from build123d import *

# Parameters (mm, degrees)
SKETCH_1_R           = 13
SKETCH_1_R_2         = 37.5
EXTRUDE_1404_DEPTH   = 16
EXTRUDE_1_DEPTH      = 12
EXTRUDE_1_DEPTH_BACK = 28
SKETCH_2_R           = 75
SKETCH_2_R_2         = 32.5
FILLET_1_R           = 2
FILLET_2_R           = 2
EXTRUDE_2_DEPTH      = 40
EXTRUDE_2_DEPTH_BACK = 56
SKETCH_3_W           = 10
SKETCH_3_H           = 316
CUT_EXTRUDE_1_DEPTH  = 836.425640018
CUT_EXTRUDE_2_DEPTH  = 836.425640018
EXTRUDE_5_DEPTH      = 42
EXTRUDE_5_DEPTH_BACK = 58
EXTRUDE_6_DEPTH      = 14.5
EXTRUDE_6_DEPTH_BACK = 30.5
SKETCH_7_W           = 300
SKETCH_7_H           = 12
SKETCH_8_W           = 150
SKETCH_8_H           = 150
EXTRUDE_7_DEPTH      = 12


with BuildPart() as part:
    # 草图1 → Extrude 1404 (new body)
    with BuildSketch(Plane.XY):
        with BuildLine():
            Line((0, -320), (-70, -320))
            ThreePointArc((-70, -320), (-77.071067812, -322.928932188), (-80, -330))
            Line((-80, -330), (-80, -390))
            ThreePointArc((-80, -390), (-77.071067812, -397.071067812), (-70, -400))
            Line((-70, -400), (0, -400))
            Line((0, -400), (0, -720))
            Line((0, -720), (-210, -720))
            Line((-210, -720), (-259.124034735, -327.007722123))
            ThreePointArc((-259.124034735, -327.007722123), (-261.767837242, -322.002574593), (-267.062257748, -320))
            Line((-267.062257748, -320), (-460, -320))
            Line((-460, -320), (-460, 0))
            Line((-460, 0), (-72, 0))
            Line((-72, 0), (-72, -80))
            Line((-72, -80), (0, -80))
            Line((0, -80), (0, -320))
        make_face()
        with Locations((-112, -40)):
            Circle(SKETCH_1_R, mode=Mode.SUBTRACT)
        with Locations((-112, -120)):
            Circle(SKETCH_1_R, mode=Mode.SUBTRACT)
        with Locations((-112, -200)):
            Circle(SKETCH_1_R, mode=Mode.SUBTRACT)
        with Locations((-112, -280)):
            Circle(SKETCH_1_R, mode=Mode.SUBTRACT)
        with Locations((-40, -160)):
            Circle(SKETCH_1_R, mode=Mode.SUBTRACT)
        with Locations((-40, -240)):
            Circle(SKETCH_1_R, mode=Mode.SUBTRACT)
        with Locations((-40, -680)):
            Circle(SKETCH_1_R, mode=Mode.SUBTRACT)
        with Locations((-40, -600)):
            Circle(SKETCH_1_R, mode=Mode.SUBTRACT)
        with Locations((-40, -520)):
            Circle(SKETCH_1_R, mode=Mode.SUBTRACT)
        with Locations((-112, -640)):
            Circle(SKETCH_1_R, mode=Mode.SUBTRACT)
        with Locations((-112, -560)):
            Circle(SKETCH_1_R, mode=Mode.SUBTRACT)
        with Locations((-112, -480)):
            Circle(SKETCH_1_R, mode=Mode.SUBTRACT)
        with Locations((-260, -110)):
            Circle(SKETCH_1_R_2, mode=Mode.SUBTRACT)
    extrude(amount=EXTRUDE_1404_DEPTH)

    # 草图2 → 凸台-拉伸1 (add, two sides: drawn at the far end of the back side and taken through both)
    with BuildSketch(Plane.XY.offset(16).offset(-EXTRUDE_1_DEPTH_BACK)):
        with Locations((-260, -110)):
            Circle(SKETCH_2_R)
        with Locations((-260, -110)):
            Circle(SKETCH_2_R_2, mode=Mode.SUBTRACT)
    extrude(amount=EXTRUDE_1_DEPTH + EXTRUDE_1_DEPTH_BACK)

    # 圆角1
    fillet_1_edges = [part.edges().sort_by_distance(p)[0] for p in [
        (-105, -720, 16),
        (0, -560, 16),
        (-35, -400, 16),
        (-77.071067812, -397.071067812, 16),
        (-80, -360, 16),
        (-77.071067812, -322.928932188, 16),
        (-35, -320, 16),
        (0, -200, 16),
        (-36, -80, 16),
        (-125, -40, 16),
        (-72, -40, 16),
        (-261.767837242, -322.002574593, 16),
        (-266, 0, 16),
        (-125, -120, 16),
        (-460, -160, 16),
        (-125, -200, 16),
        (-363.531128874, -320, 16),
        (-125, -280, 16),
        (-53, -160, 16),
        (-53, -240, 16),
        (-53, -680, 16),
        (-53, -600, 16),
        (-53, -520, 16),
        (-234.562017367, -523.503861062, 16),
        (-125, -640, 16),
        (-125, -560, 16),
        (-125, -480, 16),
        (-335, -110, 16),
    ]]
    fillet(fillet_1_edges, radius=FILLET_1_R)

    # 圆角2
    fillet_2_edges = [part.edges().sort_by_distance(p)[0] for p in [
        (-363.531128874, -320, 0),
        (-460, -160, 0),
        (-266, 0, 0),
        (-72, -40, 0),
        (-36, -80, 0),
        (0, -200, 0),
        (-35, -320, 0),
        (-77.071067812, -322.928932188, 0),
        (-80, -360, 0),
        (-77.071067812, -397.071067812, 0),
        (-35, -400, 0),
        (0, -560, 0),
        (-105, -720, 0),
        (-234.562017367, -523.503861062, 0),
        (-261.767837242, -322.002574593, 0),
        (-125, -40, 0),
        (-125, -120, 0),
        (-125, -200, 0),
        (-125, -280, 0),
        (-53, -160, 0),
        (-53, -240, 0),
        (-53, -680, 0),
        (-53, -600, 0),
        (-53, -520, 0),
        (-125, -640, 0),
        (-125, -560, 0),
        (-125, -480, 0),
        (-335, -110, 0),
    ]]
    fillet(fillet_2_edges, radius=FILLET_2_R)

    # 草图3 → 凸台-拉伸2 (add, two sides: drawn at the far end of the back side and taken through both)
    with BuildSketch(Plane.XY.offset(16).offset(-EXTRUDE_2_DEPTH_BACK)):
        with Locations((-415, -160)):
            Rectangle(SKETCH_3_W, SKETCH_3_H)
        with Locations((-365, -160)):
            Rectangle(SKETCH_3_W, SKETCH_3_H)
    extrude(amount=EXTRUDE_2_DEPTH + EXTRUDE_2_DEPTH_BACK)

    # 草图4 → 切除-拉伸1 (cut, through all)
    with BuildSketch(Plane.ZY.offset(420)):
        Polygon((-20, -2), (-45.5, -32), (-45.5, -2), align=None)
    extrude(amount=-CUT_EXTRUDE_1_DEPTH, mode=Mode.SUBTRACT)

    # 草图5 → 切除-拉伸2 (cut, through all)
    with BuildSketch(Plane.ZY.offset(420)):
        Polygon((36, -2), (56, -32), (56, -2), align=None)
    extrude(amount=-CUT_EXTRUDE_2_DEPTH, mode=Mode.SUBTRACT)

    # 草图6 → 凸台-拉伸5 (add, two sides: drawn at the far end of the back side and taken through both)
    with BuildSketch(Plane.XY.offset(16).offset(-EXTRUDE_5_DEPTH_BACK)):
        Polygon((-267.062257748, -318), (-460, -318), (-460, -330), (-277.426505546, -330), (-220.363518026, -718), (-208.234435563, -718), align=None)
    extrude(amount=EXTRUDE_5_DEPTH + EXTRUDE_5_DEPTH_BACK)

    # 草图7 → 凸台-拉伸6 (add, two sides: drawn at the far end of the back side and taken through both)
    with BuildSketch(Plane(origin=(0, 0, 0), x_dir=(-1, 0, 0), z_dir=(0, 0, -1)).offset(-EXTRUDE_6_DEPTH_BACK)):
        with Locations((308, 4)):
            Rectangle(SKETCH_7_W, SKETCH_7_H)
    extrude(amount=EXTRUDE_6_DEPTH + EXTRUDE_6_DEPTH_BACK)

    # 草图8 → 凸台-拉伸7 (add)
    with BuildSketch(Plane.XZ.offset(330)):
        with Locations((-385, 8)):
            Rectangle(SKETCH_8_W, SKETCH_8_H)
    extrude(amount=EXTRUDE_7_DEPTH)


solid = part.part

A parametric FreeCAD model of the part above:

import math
import FreeCAD as App
import Part
import Sketcher

V = App.Vector
Q = App.Units.Quantity


def edges_at(feature, points):
    """Names of the edges that pass closest to the given points."""
    edges = feature.Shape.Edges
    near = lambda p: min(range(len(edges)), key=lambda i: edges[i].distToShape(Part.Vertex(*p))[0])
    return sorted({f"Edge{near(p) + 1}" for p in points})

doc = App.newDocument("Part")
params = doc.addObject("Spreadsheet::Sheet", "Params")
for row, (alias, value) in enumerate([
    ("sketch1_diameter", "26 mm"),
    ("sketch1_diameter2", "75 mm"),
    ("sketch1_radius", "8 mm"),
    ("sketch1_radius2", "10 mm"),
    ("sketch1_width", "70 mm"),
    ("pad1_length", "16 mm"),
    ("sketch2_diameter", "150 mm"),
    ("sketch2_diameter2", "65 mm"),
    ("pad2_length", "12 mm"),
    ("pad2_length2", "28 mm"),
    ("fillet_radius", "2 mm"),
    ("fillet2_radius", "2 mm"),
    ("sketch3_width", "10 mm"),
    ("sketch3_height", "316 mm"),
    ("pad3_length", "40 mm"),
    ("pad3_length2", "56 mm"),
    ("sketch4_width", "30 mm"),
    ("sketch4_height", "25.5 mm"),
    ("sketch5_width", "30 mm"),
    ("sketch5_height", "20 mm"),
    ("sketch6_height", "12 mm"),
    ("pad4_length", "42 mm"),
    ("pad4_length2", "58 mm"),
    ("sketch7_width", "300 mm"),
    ("sketch7_height", "12 mm"),
    ("pad5_length", "14.5 mm"),
    ("pad5_length2", "30.5 mm"),
    ("sketch8_width", "150 mm"),
    ("pad6_length", "12 mm"),
], start=1):
    params.set(f"A{row}", alias)
    params.set(f"B{row}", "=" + value)
    params.setAlias(f"B{row}", alias)

body = doc.addObject("PartDesign::Body", "Body")

sketch1 = body.newObject("Sketcher::SketchObject", "Sketch")
sketch1.AttachmentSupport = (doc.getObject("XY_Plane"), [""])
sketch1.MapMode = "FlatFace"
sketch1.addGeometry(Part.LineSegment(V(-70, -320, 0), V(0, -320, 0)), False)
sketch1.addGeometry(Part.LineSegment(V(0, -320, 0), V(0, -80, 0)), False)
sketch1.addGeometry(Part.LineSegment(V(0, -80, 0), V(-72, -80, 0)), False)
sketch1.addGeometry(Part.LineSegment(V(-72, -80, 0), V(-72, 0, 0)), False)
sketch1.addGeometry(Part.LineSegment(V(-72, 0, 0), V(-460, 0, 0)), False)
sketch1.addGeometry(Part.LineSegment(V(-460, 0, 0), V(-460, -320, 0)), False)
sketch1.addGeometry(Part.LineSegment(V(-460, -320, 0), V(-267, -320, 0)), False)
sketch1.addGeometry(Part.ArcOfCircle(Part.Circle(V(-267, -328, 0), V(0, 0, 1), 8), math.radians(7), math.radians(90)), False)
sketch1.addGeometry(Part.LineSegment(V(-259, -327, 0), V(-210, -720, 0)), False)
sketch1.addGeometry(Part.LineSegment(V(-210, -720, 0), V(0, -720, 0)), False)
sketch1.addGeometry(Part.LineSegment(V(0, -720, 0), V(0, -400, 0)), False)
sketch1.addGeometry(Part.LineSegment(V(0, -400, 0), V(-70, -400, 0)), False)
sketch1.addGeometry(Part.ArcOfCircle(Part.Circle(V(-70, -390, 0), V(0, 0, 1), 10), math.radians(180), math.radians(270)), False)
sketch1.addGeometry(Part.LineSegment(V(-80, -390, 0), V(-80, -330, 0)), False)
sketch1.addGeometry(Part.ArcOfCircle(Part.Circle(V(-70, -330, 0), V(0, 0, 1), 10), math.radians(90), math.radians(180)), False)
sketch1.addGeometry(Part.Circle(V(-40, -680, 0), V(0, 0, 1), 13), False)
sketch1.addGeometry(Part.Circle(V(-40, -600, 0), V(0, 0, 1), 13), False)
sketch1.addGeometry(Part.Circle(V(-112, -640, 0), V(0, 0, 1), 13), False)
sketch1.addGeometry(Part.Circle(V(-112, -560, 0), V(0, 0, 1), 13), False)
sketch1.addGeometry(Part.Circle(V(-40, -520, 0), V(0, 0, 1), 13), False)
sketch1.addGeometry(Part.Circle(V(-112, -480, 0), V(0, 0, 1), 13), False)
sketch1.addGeometry(Part.Circle(V(-40, -240, 0), V(0, 0, 1), 13), False)
sketch1.addGeometry(Part.Circle(V(-112, -280, 0), V(0, 0, 1), 13), False)
sketch1.addGeometry(Part.Circle(V(-112, -200, 0), V(0, 0, 1), 13), False)
sketch1.addGeometry(Part.Circle(V(-40, -160, 0), V(0, 0, 1), 13), False)
sketch1.addGeometry(Part.Circle(V(-112, -120, 0), V(0, 0, 1), 13), False)
sketch1.addGeometry(Part.Circle(V(-112, -40, 0), V(0, 0, 1), 13), False)
sketch1.addGeometry(Part.Circle(V(-260, -110, 0), V(0, 0, 1), 38), False)
sketch1.addConstraint(Sketcher.Constraint("Coincident", 0, 2, 1, 1))
sketch1.addConstraint(Sketcher.Constraint("Coincident", 1, 2, 2, 1))
sketch1.addConstraint(Sketcher.Constraint("Coincident", 2, 2, 3, 1))
sketch1.addConstraint(Sketcher.Constraint("Coincident", 3, 2, 4, 1))
sketch1.addConstraint(Sketcher.Constraint("Coincident", 4, 2, 5, 1))
sketch1.addConstraint(Sketcher.Constraint("Coincident", 5, 2, 6, 1))
sketch1.addConstraint(Sketcher.Constraint("Tangent", 6, 2, 7, 2))
sketch1.addConstraint(Sketcher.Constraint("Tangent", 7, 1, 8, 1))
sketch1.addConstraint(Sketcher.Constraint("Coincident", 8, 2, 9, 1))
sketch1.addConstraint(Sketcher.Constraint("Coincident", 9, 2, 10, 1))
sketch1.addConstraint(Sketcher.Constraint("Coincident", 10, 2, 11, 1))
sketch1.addConstraint(Sketcher.Constraint("Tangent", 11, 2, 12, 2))
sketch1.addConstraint(Sketcher.Constraint("Tangent", 12, 1, 13, 1))
sketch1.addConstraint(Sketcher.Constraint("Tangent", 13, 2, 14, 2))
sketch1.addConstraint(Sketcher.Constraint("Tangent", 14, 1, 0, 1))
sketch1.addConstraint(Sketcher.Constraint("Horizontal", 0))
sketch1.addConstraint(Sketcher.Constraint("Vertical", 1))
sketch1.addConstraint(Sketcher.Constraint("Horizontal", 2))
sketch1.addConstraint(Sketcher.Constraint("Vertical", 3))
sketch1.addConstraint(Sketcher.Constraint("Horizontal", 4))
sketch1.addConstraint(Sketcher.Constraint("Vertical", 5))
sketch1.addConstraint(Sketcher.Constraint("Horizontal", 6))
sketch1.addConstraint(Sketcher.Constraint("Horizontal", 9))
sketch1.addConstraint(Sketcher.Constraint("Vertical", 10))
sketch1.addConstraint(Sketcher.Constraint("Horizontal", 11))
sketch1.addConstraint(Sketcher.Constraint("Vertical", 13))
sketch1.addConstraint(Sketcher.Constraint("Equal", 12, 14))
sketch1.addConstraint(Sketcher.Constraint("Equal", 15, 16))
sketch1.addConstraint(Sketcher.Constraint("Equal", 16, 17))
sketch1.addConstraint(Sketcher.Constraint("Equal", 17, 18))
sketch1.addConstraint(Sketcher.Constraint("Equal", 18, 19))
sketch1.addConstraint(Sketcher.Constraint("Equal", 19, 20))
sketch1.addConstraint(Sketcher.Constraint("Equal", 20, 21))
sketch1.addConstraint(Sketcher.Constraint("Equal", 21, 22))
sketch1.addConstraint(Sketcher.Constraint("Equal", 22, 23))
sketch1.addConstraint(Sketcher.Constraint("Equal", 23, 24))
sketch1.addConstraint(Sketcher.Constraint("Equal", 24, 25))
sketch1.addConstraint(Sketcher.Constraint("Equal", 25, 26))
sketch1.addConstraint(Sketcher.Constraint("PointOnObject", 0, 2, -2))
sketch1.addConstraint(Sketcher.Constraint("PointOnObject", 3, 2, -1))
sketch1.addConstraint(Sketcher.Constraint("PointOnObject", 9, 2, -2))
sketch1.addConstraint(Sketcher.Constraint("Horizontal", 0, 2, 5, 2))
sketch1.addConstraint(Sketcher.Constraint("Vertical", 15, 3, 16, 3))
sketch1.addConstraint(Sketcher.Constraint("Vertical", 17, 3, 18, 3))
sketch1.addConstraint(Sketcher.Constraint("Vertical", 16, 3, 19, 3))
sketch1.addConstraint(Sketcher.Constraint("Vertical", 18, 3, 20, 3))
sketch1.addConstraint(Sketcher.Constraint("Vertical", 19, 3, 21, 3))
sketch1.addConstraint(Sketcher.Constraint("Vertical", 20, 3, 22, 3))
sketch1.addConstraint(Sketcher.Constraint("Vertical", 22, 3, 23, 3))
sketch1.addConstraint(Sketcher.Constraint("Vertical", 21, 3, 24, 3))
sketch1.addConstraint(Sketcher.Constraint("Vertical", 23, 3, 25, 3))
sketch1.addConstraint(Sketcher.Constraint("Vertical", 25, 3, 26, 3))
sketch1.addConstraint(Sketcher.Constraint("Equal", 5, 10))
sketch1.addConstraint(Sketcher.Constraint("Diameter", 15, Q("26 mm")))
sketch1.addConstraint(Sketcher.Constraint("Diameter", 27, Q("75 mm")))
sketch1.addConstraint(Sketcher.Constraint("Radius", 7, Q("8 mm")))
sketch1.addConstraint(Sketcher.Constraint("Radius", 12, Q("10 mm")))
sketch1.addConstraint(Sketcher.Constraint("DistanceX", 0, 1, 0, 2, Q("70 mm")))
sketch1.addConstraint(Sketcher.Constraint("DistanceX", 2, 2, 2, 1, Q("72 mm")))
sketch1.addConstraint(Sketcher.Constraint("DistanceX", 4, 2, 4, 1, Q("388 mm")))
sketch1.addConstraint(Sketcher.Constraint("DistanceX", 9, 1, 9, 2, Q("210 mm")))
sketch1.addConstraint(Sketcher.Constraint("DistanceY", 1, 1, 1, 2, Q("240 mm")))
sketch1.addConstraint(Sketcher.Constraint("DistanceY", 3, 1, 3, 2, Q("80 mm")))
sketch1.addConstraint(Sketcher.Constraint("DistanceY", 13, 1, 13, 2, Q("60 mm")))
sketch1.addConstraint(Sketcher.Constraint("DistanceX", 15, 3, -1, 1, Q("40 mm")))
sketch1.addConstraint(Sketcher.Constraint("DistanceY", 15, 3, -1, 1, Q("680 mm")))
sketch1.addConstraint(Sketcher.Constraint("DistanceY", 16, 3, -1, 1, Q("600 mm")))
sketch1.addConstraint(Sketcher.Constraint("DistanceX", 17, 3, -1, 1, Q("112 mm")))
sketch1.addConstraint(Sketcher.Constraint("DistanceY", 17, 3, -1, 1, Q("640 mm")))
sketch1.addConstraint(Sketcher.Constraint("DistanceY", 18, 3, -1, 1, Q("560 mm")))
sketch1.addConstraint(Sketcher.Constraint("DistanceY", 19, 3, -1, 1, Q("520 mm")))
sketch1.addConstraint(Sketcher.Constraint("DistanceY", 20, 3, -1, 1, Q("480 mm")))
sketch1.addConstraint(Sketcher.Constraint("DistanceY", 21, 3, -1, 1, Q("240 mm")))
sketch1.addConstraint(Sketcher.Constraint("DistanceY", 22, 3, -1, 1, Q("280 mm")))
sketch1.addConstraint(Sketcher.Constraint("DistanceY", 23, 3, -1, 1, Q("200 mm")))
sketch1.addConstraint(Sketcher.Constraint("DistanceY", 24, 3, -1, 1, Q("160 mm")))
sketch1.addConstraint(Sketcher.Constraint("DistanceY", 25, 3, -1, 1, Q("120 mm")))
sketch1.addConstraint(Sketcher.Constraint("DistanceY", 26, 3, -1, 1, Q("40 mm")))
sketch1.addConstraint(Sketcher.Constraint("DistanceX", 27, 3, -1, 1, Q("260 mm")))
sketch1.addConstraint(Sketcher.Constraint("DistanceY", 27, 3, -1, 1, Q("110 mm")))
sketch1.addConstraint(Sketcher.Constraint("Distance", 8, Q("396.05063 mm")))
sketch1.setExpression("Constraints[53]", "Params.sketch1_diameter")
sketch1.setExpression("Constraints[54]", "Params.sketch1_diameter2")
sketch1.setExpression("Constraints[55]", "Params.sketch1_radius")
sketch1.setExpression("Constraints[56]", "Params.sketch1_radius2")
sketch1.setExpression("Constraints[57]", "Params.sketch1_width")
pad1 = body.newObject("PartDesign::Pad", "Pad")
pad1.Profile = sketch1
pad1.setExpression("Length", "Params.pad1_length")

sketch2 = body.newObject("Sketcher::SketchObject", "Sketch001")
sketch2.AttachmentSupport = (doc.getObject("XY_Plane"), [""])
sketch2.MapMode = "FlatFace"
sketch2.AttachmentOffset = App.Placement(V(0, 0, 16), App.Rotation())
sketch2.addGeometry(Part.Circle(V(-260, -110, 0), V(0, 0, 1), 75), False)
sketch2.addGeometry(Part.Circle(V(-260, -110, 0), V(0, 0, 1), 32), False)
sketch2.addConstraint(Sketcher.Constraint("Coincident", 1, 3, 0, 3))
sketch2.addConstraint(Sketcher.Constraint("Diameter", 0, Q("150 mm")))
sketch2.addConstraint(Sketcher.Constraint("Diameter", 1, Q("65 mm")))
sketch2.addConstraint(Sketcher.Constraint("DistanceX", 0, 3, -1, 1, Q("260 mm")))
sketch2.addConstraint(Sketcher.Constraint("DistanceY", 0, 3, -1, 1, Q("110 mm")))
sketch2.setExpression("Constraints[1]", "Params.sketch2_diameter")
sketch2.setExpression("Constraints[2]", "Params.sketch2_diameter2")
pad2 = body.newObject("PartDesign::Pad", "Pad001")
pad2.Profile = sketch2
pad2.Type = "TwoLengths"
pad2.setExpression("Length", "Params.pad2_length")
pad2.setExpression("Length2", "Params.pad2_length2")
doc.recompute()

fillet = body.newObject("PartDesign::Fillet", "Fillet")
fillet.Base = (pad2, edges_at(pad2, [
    (-105, -720, 16),
    (0, -560, 16),
    (-35, -400, 16),
    (-77.071, -397.071, 16),
    (-80, -360, 16),
    (-77.071, -322.929, 16),
    (-35, -320, 16),
    (0, -200, 16),
    (-36, -80, 16),
    (-125, -40, 16),
    (-72, -40, 16),
    (-261.768, -322.003, 16),
    (-266, 0, 16),
    (-125, -120, 16),
    (-460, -160, 16),
    (-125, -200, 16),
    (-363.531, -320, 16),
    (-125, -280, 16),
    (-53, -160, 16),
    (-53, -240, 16),
    (-53, -680, 16),
    (-53, -600, 16),
    (-53, -520, 16),
    (-234.562, -523.504, 16),
    (-125, -640, 16),
    (-125, -560, 16),
    (-125, -480, 16),
    (-335, -110, 16),
]))
fillet.setExpression("Radius", "Params.fillet_radius")
doc.recompute()

fillet2 = body.newObject("PartDesign::Fillet", "Fillet001")
fillet2.Base = (fillet, edges_at(fillet, [
    (-363.531, -320, 0),
    (-460, -160, 0),
    (-266, 0, 0),
    (-72, -40, 0),
    (-36, -80, 0),
    (0, -200, 0),
    (-35, -320, 0),
    (-77.071, -322.929, 0),
    (-80, -360, 0),
    (-77.071, -397.071, 0),
    (-35, -400, 0),
    (0, -560, 0),
    (-105, -720, 0),
    (-234.562, -523.504, 0),
    (-261.768, -322.003, 0),
    (-125, -40, 0),
    (-125, -120, 0),
    (-125, -200, 0),
    (-125, -280, 0),
    (-53, -160, 0),
    (-53, -240, 0),
    (-53, -680, 0),
    (-53, -600, 0),
    (-53, -520, 0),
    (-125, -640, 0),
    (-125, -560, 0),
    (-125, -480, 0),
    (-335, -110, 0),
]))
fillet2.setExpression("Radius", "Params.fillet2_radius")

sketch3 = body.newObject("Sketcher::SketchObject", "Sketch002")
sketch3.AttachmentSupport = (doc.getObject("XY_Plane"), [""])
sketch3.MapMode = "FlatFace"
sketch3.AttachmentOffset = App.Placement(V(0, 0, 16), App.Rotation())
sketch3.addGeometry(Part.LineSegment(V(-420, -2, 0), V(-420, -318, 0)), False)
sketch3.addGeometry(Part.LineSegment(V(-420, -318, 0), V(-410, -318, 0)), False)
sketch3.addGeometry(Part.LineSegment(V(-410, -318, 0), V(-410, -2, 0)), False)
sketch3.addGeometry(Part.LineSegment(V(-410, -2, 0), V(-420, -2, 0)), False)
sketch3.addGeometry(Part.LineSegment(V(-370, -2, 0), V(-370, -318, 0)), False)
sketch3.addGeometry(Part.LineSegment(V(-370, -318, 0), V(-360, -318, 0)), False)
sketch3.addGeometry(Part.LineSegment(V(-360, -318, 0), V(-360, -2, 0)), False)
sketch3.addGeometry(Part.LineSegment(V(-360, -2, 0), V(-370, -2, 0)), False)
sketch3.addConstraint(Sketcher.Constraint("Coincident", 0, 2, 1, 1))
sketch3.addConstraint(Sketcher.Constraint("Coincident", 1, 2, 2, 1))
sketch3.addConstraint(Sketcher.Constraint("Coincident", 2, 2, 3, 1))
sketch3.addConstraint(Sketcher.Constraint("Coincident", 3, 2, 0, 1))
sketch3.addConstraint(Sketcher.Constraint("Coincident", 4, 2, 5, 1))
sketch3.addConstraint(Sketcher.Constraint("Coincident", 5, 2, 6, 1))
sketch3.addConstraint(Sketcher.Constraint("Coincident", 6, 2, 7, 1))
sketch3.addConstraint(Sketcher.Constraint("Coincident", 7, 2, 4, 1))
sketch3.addConstraint(Sketcher.Constraint("Vertical", 0))
sketch3.addConstraint(Sketcher.Constraint("Horizontal", 1))
sketch3.addConstraint(Sketcher.Constraint("Vertical", 2))
sketch3.addConstraint(Sketcher.Constraint("Horizontal", 3))
sketch3.addConstraint(Sketcher.Constraint("Vertical", 4))
sketch3.addConstraint(Sketcher.Constraint("Horizontal", 5))
sketch3.addConstraint(Sketcher.Constraint("Vertical", 6))
sketch3.addConstraint(Sketcher.Constraint("Horizontal", 7))
sketch3.addConstraint(Sketcher.Constraint("Horizontal", 1, 2, 4, 2))
sketch3.addConstraint(Sketcher.Constraint("Horizontal", 3, 2, 6, 2))
sketch3.addConstraint(Sketcher.Constraint("Equal", 3, 5))
sketch3.addConstraint(Sketcher.Constraint("DistanceX", 1, 1, 1, 2, Q("10 mm")))
sketch3.addConstraint(Sketcher.Constraint("DistanceY", 0, 2, 0, 1, Q("316 mm")))
sketch3.addConstraint(Sketcher.Constraint("DistanceX", 0, 2, -1, 1, Q("420 mm")))
sketch3.addConstraint(Sketcher.Constraint("DistanceY", 0, 2, -1, 1, Q("318 mm")))
sketch3.addConstraint(Sketcher.Constraint("DistanceX", 4, 2, -1, 1, Q("370 mm")))
sketch3.setExpression("Constraints[19]", "Params.sketch3_width")
sketch3.setExpression("Constraints[20]", "Params.sketch3_height")
pad3 = body.newObject("PartDesign::Pad", "Pad002")
pad3.Profile = sketch3
pad3.Type = "TwoLengths"
pad3.setExpression("Length", "Params.pad3_length")
pad3.setExpression("Length2", "Params.pad3_length2")

sketch4 = body.newObject("Sketcher::SketchObject", "Sketch003")
sketch4.AttachmentSupport = (doc.getObject("YZ_Plane"), [""])
sketch4.MapMode = "FlatFace"
sketch4.AttachmentOffset = App.Placement(V(0, 0, -420), App.Rotation())
sketch4.addGeometry(Part.LineSegment(V(-32, -46, 0), V(-2, -20, 0)), False)
sketch4.addGeometry(Part.LineSegment(V(-2, -20, 0), V(-2, -46, 0)), False)
sketch4.addGeometry(Part.LineSegment(V(-2, -46, 0), V(-32, -46, 0)), False)
sketch4.addConstraint(Sketcher.Constraint("Coincident", 0, 2, 1, 1))
sketch4.addConstraint(Sketcher.Constraint("Coincident", 1, 2, 2, 1))
sketch4.addConstraint(Sketcher.Constraint("Coincident", 2, 2, 0, 1))
sketch4.addConstraint(Sketcher.Constraint("Vertical", 1))
sketch4.addConstraint(Sketcher.Constraint("Horizontal", 2))
sketch4.addConstraint(Sketcher.Constraint("DistanceX", 2, 2, 2, 1, Q("30 mm")))
sketch4.addConstraint(Sketcher.Constraint("DistanceY", 1, 2, 1, 1, Q("25.5 mm")))
sketch4.addConstraint(Sketcher.Constraint("DistanceX", 0, 2, -1, 1, Q("2 mm")))
sketch4.addConstraint(Sketcher.Constraint("DistanceY", 0, 2, -1, 1, Q("20 mm")))
sketch4.setExpression("Constraints[5]", "Params.sketch4_width")
sketch4.setExpression("Constraints[6]", "Params.sketch4_height")
pocket1 = body.newObject("PartDesign::Pocket", "Pocket")
pocket1.Profile = sketch4
pocket1.Type = "ThroughAll"
pocket1.Reversed = True

sketch5 = body.newObject("Sketcher::SketchObject", "Sketch004")
sketch5.AttachmentSupport = (doc.getObject("YZ_Plane"), [""])
sketch5.MapMode = "FlatFace"
sketch5.AttachmentOffset = App.Placement(V(0, 0, -420), App.Rotation())
sketch5.addGeometry(Part.LineSegment(V(-2, 36, 0), V(-32, 56, 0)), False)
sketch5.addGeometry(Part.LineSegment(V(-32, 56, 0), V(-2, 56, 0)), False)
sketch5.addGeometry(Part.LineSegment(V(-2, 56, 0), V(-2, 36, 0)), False)
sketch5.addConstraint(Sketcher.Constraint("Coincident", 0, 2, 1, 1))
sketch5.addConstraint(Sketcher.Constraint("Coincident", 1, 2, 2, 1))
sketch5.addConstraint(Sketcher.Constraint("Coincident", 2, 2, 0, 1))
sketch5.addConstraint(Sketcher.Constraint("Horizontal", 1))
sketch5.addConstraint(Sketcher.Constraint("Vertical", 2))
sketch5.addConstraint(Sketcher.Constraint("DistanceX", 1, 1, 1, 2, Q("30 mm")))
sketch5.addConstraint(Sketcher.Constraint("DistanceY", 2, 2, 2, 1, Q("20 mm")))
sketch5.addConstraint(Sketcher.Constraint("DistanceX", 0, 2, -1, 1, Q("32 mm")))
sketch5.addConstraint(Sketcher.Constraint("DistanceY", -1, 1, 0, 2, Q("56 mm")))
sketch5.setExpression("Constraints[5]", "Params.sketch5_width")
sketch5.setExpression("Constraints[6]", "Params.sketch5_height")
pocket2 = body.newObject("PartDesign::Pocket", "Pocket001")
pocket2.Profile = sketch5
pocket2.Type = "ThroughAll"
pocket2.Reversed = True

sketch6 = body.newObject("Sketcher::SketchObject", "Sketch005")
sketch6.AttachmentSupport = (doc.getObject("XY_Plane"), [""])
sketch6.MapMode = "FlatFace"
sketch6.AttachmentOffset = App.Placement(V(0, 0, 16), App.Rotation())
sketch6.addGeometry(Part.LineSegment(V(-267, -318, 0), V(-460, -318, 0)), False)
sketch6.addGeometry(Part.LineSegment(V(-460, -318, 0), V(-460, -330, 0)), False)
sketch6.addGeometry(Part.LineSegment(V(-460, -330, 0), V(-277, -330, 0)), False)
sketch6.addGeometry(Part.LineSegment(V(-277, -330, 0), V(-220, -718, 0)), False)
sketch6.addGeometry(Part.LineSegment(V(-220, -718, 0), V(-208, -718, 0)), False)
sketch6.addGeometry(Part.LineSegment(V(-208, -718, 0), V(-267, -318, 0)), False)
sketch6.addConstraint(Sketcher.Constraint("Coincident", 0, 2, 1, 1))
sketch6.addConstraint(Sketcher.Constraint("Coincident", 1, 2, 2, 1))
sketch6.addConstraint(Sketcher.Constraint("Coincident", 2, 2, 3, 1))
sketch6.addConstraint(Sketcher.Constraint("Coincident", 3, 2, 4, 1))
sketch6.addConstraint(Sketcher.Constraint("Coincident", 4, 2, 5, 1))
sketch6.addConstraint(Sketcher.Constraint("Coincident", 5, 2, 0, 1))
sketch6.addConstraint(Sketcher.Constraint("Horizontal", 0))
sketch6.addConstraint(Sketcher.Constraint("Vertical", 1))
sketch6.addConstraint(Sketcher.Constraint("Horizontal", 2))
sketch6.addConstraint(Sketcher.Constraint("Horizontal", 4))
sketch6.addConstraint(Sketcher.Constraint("Parallel", 3, 5))
sketch6.addConstraint(Sketcher.Constraint("DistanceY", 1, 2, 1, 1, Q("12 mm")))
sketch6.addConstraint(Sketcher.Constraint("DistanceX", 0, 2, -1, 1, Q("460 mm")))
sketch6.addConstraint(Sketcher.Constraint("DistanceY", 0, 2, -1, 1, Q("318 mm")))
sketch6.addConstraint(Sketcher.Constraint("DistanceY", 3, 2, -1, 1, Q("718 mm")))
sketch6.addConstraint(Sketcher.Constraint("Distance", 5, Q("404.302749 mm")))
sketch6.addConstraint(Sketcher.Constraint("DistanceX", 0, 2, 0, 1, Q("192.937742 mm")))
sketch6.addConstraint(Sketcher.Constraint("DistanceX", 2, 1, 2, 2, Q("182.573494 mm")))
sketch6.setExpression("Constraints[11]", "Params.sketch6_height")
pad4 = body.newObject("PartDesign::Pad", "Pad003")
pad4.Profile = sketch6
pad4.Type = "TwoLengths"
pad4.setExpression("Length", "Params.pad4_length")
pad4.setExpression("Length2", "Params.pad4_length2")

sketch7 = body.newObject("Sketcher::SketchObject", "Sketch006")
sketch7.AttachmentSupport = (doc.getObject("XY_Plane"), [""])
sketch7.MapMode = "FlatFace"
sketch7.addGeometry(Part.LineSegment(V(-158, 10, 0), V(-158, -2, 0)), False)
sketch7.addGeometry(Part.LineSegment(V(-158, -2, 0), V(-458, -2, 0)), False)
sketch7.addGeometry(Part.LineSegment(V(-458, -2, 0), V(-458, 10, 0)), False)
sketch7.addGeometry(Part.LineSegment(V(-458, 10, 0), V(-158, 10, 0)), False)
sketch7.addConstraint(Sketcher.Constraint("Coincident", 0, 2, 1, 1))
sketch7.addConstraint(Sketcher.Constraint("Coincident", 1, 2, 2, 1))
sketch7.addConstraint(Sketcher.Constraint("Coincident", 2, 2, 3, 1))
sketch7.addConstraint(Sketcher.Constraint("Coincident", 3, 2, 0, 1))
sketch7.addConstraint(Sketcher.Constraint("Vertical", 0))
sketch7.addConstraint(Sketcher.Constraint("Horizontal", 1))
sketch7.addConstraint(Sketcher.Constraint("Vertical", 2))
sketch7.addConstraint(Sketcher.Constraint("Horizontal", 3))
sketch7.addConstraint(Sketcher.Constraint("DistanceX", 1, 2, 1, 1, Q("300 mm")))
sketch7.addConstraint(Sketcher.Constraint("DistanceY", 0, 2, 0, 1, Q("12 mm")))
sketch7.addConstraint(Sketcher.Constraint("DistanceX", 0, 2, -1, 1, Q("158 mm")))
sketch7.addConstraint(Sketcher.Constraint("DistanceY", 0, 2, -1, 1, Q("2 mm")))
sketch7.setExpression("Constraints[8]", "Params.sketch7_width")
sketch7.setExpression("Constraints[9]", "Params.sketch7_height")
pad5 = body.newObject("PartDesign::Pad", "Pad004")
pad5.Profile = sketch7
pad5.Type = "TwoLengths"
pad5.setExpression("Length", "Params.pad5_length")
pad5.setExpression("Length2", "Params.pad5_length2")
pad5.Reversed = True

sketch8 = body.newObject("Sketcher::SketchObject", "Sketch007")
sketch8.AttachmentSupport = (doc.getObject("XZ_Plane"), [""])
sketch8.MapMode = "FlatFace"
sketch8.AttachmentOffset = App.Placement(V(0, 0, 330), App.Rotation())
sketch8.addGeometry(Part.LineSegment(V(-460, 83, 0), V(-460, -67, 0)), False)
sketch8.addGeometry(Part.LineSegment(V(-460, -67, 0), V(-310, -67, 0)), False)
sketch8.addGeometry(Part.LineSegment(V(-310, -67, 0), V(-310, 83, 0)), False)
sketch8.addGeometry(Part.LineSegment(V(-310, 83, 0), V(-460, 83, 0)), False)
sketch8.addConstraint(Sketcher.Constraint("Coincident", 0, 2, 1, 1))
sketch8.addConstraint(Sketcher.Constraint("Coincident", 1, 2, 2, 1))
sketch8.addConstraint(Sketcher.Constraint("Coincident", 2, 2, 3, 1))
sketch8.addConstraint(Sketcher.Constraint("Coincident", 3, 2, 0, 1))
sketch8.addConstraint(Sketcher.Constraint("Vertical", 0))
sketch8.addConstraint(Sketcher.Constraint("Horizontal", 1))
sketch8.addConstraint(Sketcher.Constraint("Vertical", 2))
sketch8.addConstraint(Sketcher.Constraint("Horizontal", 3))
sketch8.addConstraint(Sketcher.Constraint("Equal", 3, 0))
sketch8.addConstraint(Sketcher.Constraint("DistanceX", 1, 1, 1, 2, Q("150 mm")))
sketch8.addConstraint(Sketcher.Constraint("DistanceX", 0, 2, -1, 1, Q("460 mm")))
sketch8.addConstraint(Sketcher.Constraint("DistanceY", 0, 2, -1, 1, Q("67 mm")))
sketch8.setExpression("Constraints[9]", "Params.sketch8_width")
pad6 = body.newObject("PartDesign::Pad", "Pad005")
pad6.Profile = sketch8
pad6.setExpression("Length", "Params.pad6_length")

doc.recompute()
